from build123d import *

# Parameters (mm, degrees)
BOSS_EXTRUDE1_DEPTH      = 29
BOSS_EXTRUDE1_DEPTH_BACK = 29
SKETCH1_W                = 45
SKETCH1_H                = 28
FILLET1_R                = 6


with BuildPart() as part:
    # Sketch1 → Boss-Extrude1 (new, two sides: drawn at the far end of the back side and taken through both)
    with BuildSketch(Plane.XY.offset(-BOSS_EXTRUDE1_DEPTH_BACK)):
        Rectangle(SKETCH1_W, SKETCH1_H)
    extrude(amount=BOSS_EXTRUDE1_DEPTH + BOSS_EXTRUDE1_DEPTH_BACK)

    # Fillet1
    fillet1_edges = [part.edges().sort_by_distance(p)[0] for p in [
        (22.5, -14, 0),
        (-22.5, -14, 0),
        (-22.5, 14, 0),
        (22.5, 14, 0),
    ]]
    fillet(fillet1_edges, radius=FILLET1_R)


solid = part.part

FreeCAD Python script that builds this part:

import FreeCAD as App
import Part
import Sketcher
from FreeCAD import Vector
Q = App.Units.Quantity


def edges_at(feature, points):
    """Names of the edges that pass closest to the given points."""
    edges = feature.Shape.Edges
    near = lambda p: min(range(len(edges)), key=lambda i: edges[i].distToShape(Part.Vertex(*p))[0])
    return sorted({f"Edge{near(p) + 1}" for p in points})


def add_polygon(sketch, points):
    """Adds a closed chain of lines whose ends are joined by coincident constraints."""
    first, n = sketch.GeometryCount, len(points)
    for a, b in zip(points, points[1:] + points[:1]):
        sketch.addGeometry(Part.LineSegment(App.Vector(*a, 0), App.Vector(*b, 0)), False)
    for i in range(n):
        sketch.addConstraint(Sketcher.Constraint("Coincident", first + i, 2, first + (i + 1) % n, 1))

doc = App.newDocument("Part")
body = doc.addObject("PartDesign::Body", "Body")

sketch1 = body.newObject("Sketcher::SketchObject", "Sketch")
sketch1.AttachmentSupport = (doc.getObject("XY_Plane"), [""])
sketch1.MapMode = "FlatFace"
add_polygon(sketch1, [(-22.5, 14), (-22.5, -14), (22.5, -14), (22.5, 14)])
sketch1.addConstraint([
    Sketcher.Constraint("Vertical", 0),
    Sketcher.Constraint("Horizontal", 1),
    Sketcher.Constraint("Vertical", 2),
    Sketcher.Constraint("Horizontal", 3),
    Sketcher.Constraint("Symmetric", 0, 2, 2, 2, -1, 1),
    Sketcher.Constraint("DistanceX", 1, 1, 1, 2, Q("45 mm")),
    Sketcher.Constraint("DistanceY", 0, 2, 0, 1, Q("28 mm")),
])
pad1 = body.newObject("PartDesign::Pad", "Pad")
pad1.Profile = sketch1
pad1.Type = "TwoLengths"
pad1.Length = 29
pad1.Length2 = 29
doc.recompute()

fillet = body.newObject("PartDesign::Fillet", "Fillet")
fillet.Base = (pad1, edges_at(pad1, [
    (22.5, -14, 0),
    (-22.5, -14, 0),
    (-22.5, 14, 0),
    (22.5, 14, 0),
]))
fillet.Radius = 6

doc.recompute()
